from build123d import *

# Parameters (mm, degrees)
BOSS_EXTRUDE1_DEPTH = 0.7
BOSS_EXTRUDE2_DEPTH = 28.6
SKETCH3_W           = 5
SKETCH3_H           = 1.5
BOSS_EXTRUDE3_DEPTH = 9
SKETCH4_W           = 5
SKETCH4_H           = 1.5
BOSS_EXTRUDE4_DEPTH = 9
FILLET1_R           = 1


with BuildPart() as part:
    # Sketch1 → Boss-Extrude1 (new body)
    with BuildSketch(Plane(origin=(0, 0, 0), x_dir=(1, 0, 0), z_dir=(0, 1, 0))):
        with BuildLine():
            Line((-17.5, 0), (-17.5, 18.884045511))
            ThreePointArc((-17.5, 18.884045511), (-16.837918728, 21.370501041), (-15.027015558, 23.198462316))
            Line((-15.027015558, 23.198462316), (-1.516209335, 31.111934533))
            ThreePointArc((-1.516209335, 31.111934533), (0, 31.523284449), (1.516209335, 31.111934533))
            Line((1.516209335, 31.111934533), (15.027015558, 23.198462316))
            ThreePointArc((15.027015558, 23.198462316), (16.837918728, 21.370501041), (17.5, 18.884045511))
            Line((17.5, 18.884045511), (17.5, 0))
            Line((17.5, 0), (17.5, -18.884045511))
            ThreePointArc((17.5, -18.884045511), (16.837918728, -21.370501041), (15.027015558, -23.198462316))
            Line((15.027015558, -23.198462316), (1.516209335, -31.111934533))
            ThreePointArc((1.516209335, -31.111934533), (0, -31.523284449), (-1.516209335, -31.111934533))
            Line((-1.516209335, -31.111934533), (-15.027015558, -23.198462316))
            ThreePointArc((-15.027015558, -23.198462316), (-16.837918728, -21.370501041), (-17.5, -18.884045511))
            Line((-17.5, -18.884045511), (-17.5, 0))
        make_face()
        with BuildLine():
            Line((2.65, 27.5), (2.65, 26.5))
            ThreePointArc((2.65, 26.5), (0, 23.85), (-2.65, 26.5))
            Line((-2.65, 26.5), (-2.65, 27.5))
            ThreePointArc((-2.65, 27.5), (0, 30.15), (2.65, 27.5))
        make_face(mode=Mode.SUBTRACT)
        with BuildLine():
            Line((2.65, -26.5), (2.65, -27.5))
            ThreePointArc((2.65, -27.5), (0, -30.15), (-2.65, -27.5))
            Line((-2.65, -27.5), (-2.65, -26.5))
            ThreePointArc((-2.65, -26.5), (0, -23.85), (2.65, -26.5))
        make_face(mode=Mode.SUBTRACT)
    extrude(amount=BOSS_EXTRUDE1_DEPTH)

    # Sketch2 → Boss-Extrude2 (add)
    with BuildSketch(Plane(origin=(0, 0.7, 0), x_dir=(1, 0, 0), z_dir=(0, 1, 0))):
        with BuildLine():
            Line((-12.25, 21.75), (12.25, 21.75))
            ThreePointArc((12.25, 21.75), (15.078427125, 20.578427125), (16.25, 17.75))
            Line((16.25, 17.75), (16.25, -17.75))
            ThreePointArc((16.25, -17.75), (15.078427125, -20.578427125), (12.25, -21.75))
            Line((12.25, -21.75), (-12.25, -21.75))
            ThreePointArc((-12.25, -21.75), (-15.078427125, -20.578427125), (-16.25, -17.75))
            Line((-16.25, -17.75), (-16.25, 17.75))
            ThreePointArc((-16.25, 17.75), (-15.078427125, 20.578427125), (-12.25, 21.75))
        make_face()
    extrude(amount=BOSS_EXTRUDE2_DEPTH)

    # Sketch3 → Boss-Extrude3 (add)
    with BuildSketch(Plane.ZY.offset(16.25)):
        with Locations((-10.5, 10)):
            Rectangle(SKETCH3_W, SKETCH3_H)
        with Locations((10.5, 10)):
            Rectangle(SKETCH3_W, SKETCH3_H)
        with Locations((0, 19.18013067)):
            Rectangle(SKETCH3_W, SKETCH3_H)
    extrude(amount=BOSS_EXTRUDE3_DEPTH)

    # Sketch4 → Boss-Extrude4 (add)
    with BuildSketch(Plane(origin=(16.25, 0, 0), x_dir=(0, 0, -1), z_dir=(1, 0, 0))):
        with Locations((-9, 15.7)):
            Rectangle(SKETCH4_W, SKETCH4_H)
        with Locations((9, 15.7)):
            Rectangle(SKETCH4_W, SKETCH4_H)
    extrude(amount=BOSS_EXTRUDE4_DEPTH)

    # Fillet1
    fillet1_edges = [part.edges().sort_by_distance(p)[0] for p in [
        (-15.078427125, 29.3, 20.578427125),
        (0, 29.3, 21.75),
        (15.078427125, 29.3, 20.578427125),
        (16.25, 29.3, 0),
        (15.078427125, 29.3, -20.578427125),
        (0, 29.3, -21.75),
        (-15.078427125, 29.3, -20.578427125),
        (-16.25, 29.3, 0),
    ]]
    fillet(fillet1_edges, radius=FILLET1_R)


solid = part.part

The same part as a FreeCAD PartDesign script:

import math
import FreeCAD as App
import Part
import Sketcher

V = App.Vector


def edges_at(feature, points):
    """Names of the edges that pass closest to the given points."""
    edges = feature.Shape.Edges
    near = lambda p: min(range(len(edges)), key=lambda i: edges[i].distToShape(Part.Vertex(*p))[0])
    return sorted({f"Edge{near(p) + 1}" for p in points})


def add_polygon(sketch, points):
    """Adds a closed chain of lines whose ends are joined by coincident constraints."""
    first, n = sketch.GeometryCount, len(points)
    for a, b in zip(points, points[1:] + points[:1]):
        sketch.addGeometry(Part.LineSegment(App.Vector(*a, 0), App.Vector(*b, 0)), False)
    for i in range(n):
        sketch.addConstraint(Sketcher.Constraint("Coincident", first + i, 2, first + (i + 1) % n, 1))

doc = App.newDocument("Part")
body = doc.addObject("PartDesign::Body", "Body")

sketch1 = doc.addObject("Sketcher::SketchObject", "Sketch")
body.addObject(sketch1)
sketch1.AttachmentSupport = (doc.XZ_Plane, [""])
sketch1.MapMode = "FlatFace"
sketch1.addGeometry(Part.ArcOfCircle(Part.Circle(V(-12.5, -18.9, 0), V(0, 0, 1), 5), math.radians(-180), math.radians(-120)), False)
sketch1.addGeometry(Part.LineSegment(V(-17.5, -18.9, 0), V(-17.5, 18.9, 0)), False)
sketch1.addGeometry(Part.ArcOfCircle(Part.Circle(V(-12.5, 18.9, 0), V(0, 0, 1), 5), math.radians(120), math.radians(180)), False)
sketch1.addGeometry(Part.LineSegment(V(-15, 23.2, 0), V(-1.5, 31.1, 0)), False)
sketch1.addGeometry(Part.ArcOfCircle(Part.Circle(V(0, 28.5, 0), V(0, 0, 1), 3), math.radians(60), math.radians(120)), False)
sketch1.addGeometry(Part.LineSegment(V(1.5, 31.1, 0), V(15, 23.2, 0)), False)
sketch1.addGeometry(Part.ArcOfCircle(Part.Circle(V(12.5, 18.9, 0), V(0, 0, 1), 5), math.radians(0), math.radians(60)), False)
sketch1.addGeometry(Part.LineSegment(V(17.5, 18.9, 0), V(17.5, -18.9, 0)), False)
sketch1.addGeometry(Part.ArcOfCircle(Part.Circle(V(12.5, -18.9, 0), V(0, 0, 1), 5), math.radians(-60), math.radians(0)), False)
sketch1.addGeometry(Part.LineSegment(V(15, -23.2, 0), V(1.5, -31.1, 0)), False)
sketch1.addGeometry(Part.ArcOfCircle(Part.Circle(V(0, -28.5, 0), V(0, 0, 1), 3), math.radians(-120), math.radians(-60)), False)
sketch1.addGeometry(Part.LineSegment(V(-1.5, -31.1, 0), V(-15, -23.2, 0)), False)
sketch1.addGeometry(Part.LineSegment(V(2.6, 26.5, 0), V(2.6, 27.5, 0)), False)
sketch1.addGeometry(Part.ArcOfCircle(Part.Circle(V(0, 27.5, 0), V(0, 0, 1), 2.6), math.radians(0), math.radians(180)), False)
sketch1.addGeometry(Part.LineSegment(V(-2.6, 27.5, 0), V(-2.6, 26.5, 0)), False)
sketch1.addGeometry(Part.ArcOfCircle(Part.Circle(V(0, 26.5, 0), V(0, 0, 1), 2.6), math.radians(180), math.radians(360)), False)
sketch1.addGeometry(Part.LineSegment(V(2.6, -27.5, 0), V(2.6, -26.5, 0)), False)
sketch1.addGeometry(Part.ArcOfCircle(Part.Circle(V(0, -26.5, 0), V(0, 0, 1), 2.6), math.radians(0), math.radians(180)), False)
sketch1.addGeometry(Part.LineSegment(V(-2.6, -26.5, 0), V(-2.6, -27.5, 0)), False)
sketch1.addGeometry(Part.ArcOfCircle(Part.Circle(V(0, -27.5, 0), V(0, 0, 1), 2.6), math.radians(180), math.radians(360)), False)
sketch1.addConstraint(Sketcher.Constraint("Tangent", 0, 1, 1, 1))
sketch1.addConstraint(Sketcher.Constraint("Tangent", 1, 2, 2, 2))
sketch1.addConstraint(Sketcher.Constraint("Tangent", 2, 1, 3, 1))
sketch1.addConstraint(Sketcher.Constraint("Tangent", 3, 2, 4, 2))
sketch1.addConstraint(Sketcher.Constraint("Tangent", 4, 1, 5, 1))
sketch1.addConstraint(Sketcher.Constraint("Tangent", 5, 2, 6, 2))
sketch1.addConstraint(Sketcher.Constraint("Tangent", 6, 1, 7, 1))
sketch1.addConstraint(Sketcher.Constraint("Tangent", 7, 2, 8, 2))
sketch1.addConstraint(Sketcher.Constraint("Tangent", 8, 1, 9, 1))
sketch1.addConstraint(Sketcher.Constraint("Tangent", 9, 2, 10, 2))
sketch1.addConstraint(Sketcher.Constraint("Tangent", 10, 1, 11, 1))
sketch1.addConstraint(Sketcher.Constraint("Tangent", 11, 2, 0, 2))
sketch1.addConstraint(Sketcher.Constraint("Tangent", 12, 2, 13, 1))
sketch1.addConstraint(Sketcher.Constraint("Tangent", 13, 2, 14, 1))
sketch1.addConstraint(Sketcher.Constraint("Tangent", 14, 2, 15, 1))
sketch1.addConstraint(Sketcher.Constraint("Tangent", 15, 2, 12, 1))
sketch1.addConstraint(Sketcher.Constraint("Tangent", 16, 2, 17, 1))
sketch1.addConstraint(Sketcher.Constraint("Tangent", 17, 2, 18, 1))
sketch1.addConstraint(Sketcher.Constraint("Tangent", 18, 2, 19, 1))
sketch1.addConstraint(Sketcher.Constraint("Tangent", 19, 2, 16, 1))
sketch1.addConstraint(Sketcher.Constraint("Vertical", 1))
sketch1.addConstraint(Sketcher.Constraint("Vertical", 7))
sketch1.addConstraint(Sketcher.Constraint("Vertical", 12))
sketch1.addConstraint(Sketcher.Constraint("Vertical", 14))
sketch1.addConstraint(Sketcher.Constraint("Vertical", 16))
sketch1.addConstraint(Sketcher.Constraint("Vertical", 18))
sketch1.addConstraint(Sketcher.Constraint("Equal", 0, 2))
sketch1.addConstraint(Sketcher.Constraint("Equal", 2, 6))
sketch1.addConstraint(Sketcher.Constraint("Equal", 6, 8))
sketch1.addConstraint(Sketcher.Constraint("Equal", 4, 10))
sketch1.addConstraint(Sketcher.Constraint("Equal", 15, 17))
sketch1.addConstraint(Sketcher.Constraint("Symmetric", 0, 3, 6, 3, -1, 1))
sketch1.addConstraint(Sketcher.Constraint("Symmetric", 4, 3, 10, 3, -1, 1))
sketch1.addConstraint(Sketcher.Constraint("Symmetric", 15, 3, 17, 3, -1, 1))
sketch1.addConstraint(Sketcher.Constraint("Symmetric", 3, 2, 4, 1, -2))
sketch1.addConstraint(Sketcher.Constraint("Symmetric", 13, 3, 19, 3, -1))
sketch1.addConstraint(Sketcher.Constraint("Parallel", 3, 9))
sketch1.addConstraint(Sketcher.Constraint("Radius", 0, 5.0))
sketch1.addConstraint(Sketcher.Constraint("Radius", 4, 3.0))
sketch1.addConstraint(Sketcher.Constraint("DistanceY", 12, 1, 12, 2, 1.0))
sketch1.addConstraint(Sketcher.Constraint("Radius", 13, 2.65))
sketch1.addConstraint(Sketcher.Constraint("DistanceX", 2, 3, 6, 3, 25.0))
sketch1.addConstraint(Sketcher.Constraint("DistanceY", -1, 1, 13, 3, 27.5))
sketch1.addConstraint(Sketcher.Constraint("DistanceY", 1, 1, 1, 2, 37.768091))
sketch1.addConstraint(Sketcher.Constraint("DistanceX", 3, 2, -1, 1, 1.516209))
pad1 = doc.addObject("PartDesign::Pad", "Pad")
body.addObject(pad1)
pad1.Profile = sketch1
pad1.Length = 0.7
pad1.Reversed = True

sketch2 = doc.addObject("Sketcher::SketchObject", "Sketch001")
body.addObject(sketch2)
sketch2.AttachmentSupport = (doc.XZ_Plane, [""])
sketch2.MapMode = "FlatFace"
sketch2.AttachmentOffset = App.Placement(V(0, 0, -0.7), App.Rotation())
sketch2.addGeometry(Part.LineSegment(V(12.2, -21.8, 0), V(-12.2, -21.8, 0)), False)
sketch2.addGeometry(Part.ArcOfCircle(Part.Circle(V(-12.3, -17.8, 0), V(0, 0, 1), 4), math.radians(180), math.radians(270)), False)
sketch2.addGeometry(Part.LineSegment(V(-16.2, -17.8, 0), V(-16.2, 17.8, 0)), False)
sketch2.addGeometry(Part.ArcOfCircle(Part.Circle(V(-12.3, 17.8, 0), V(0, 0, 1), 4), math.radians(90), math.radians(180)), False)
sketch2.addGeometry(Part.LineSegment(V(-12.2, 21.8, 0), V(12.2, 21.8, 0)), False)
sketch2.addGeometry(Part.ArcOfCircle(Part.Circle(V(12.3, 17.8, 0), V(0, 0, 1), 4), math.radians(0), math.radians(90)), False)
sketch2.addGeometry(Part.LineSegment(V(16.2, 17.8, 0), V(16.2, -17.8, 0)), False)
sketch2.addGeometry(Part.ArcOfCircle(Part.Circle(V(12.3, -17.8, 0), V(0, 0, 1), 4), math.radians(-90), math.radians(0)), False)
sketch2.addConstraint(Sketcher.Constraint("Tangent", 0, 2, 1, 2))
sketch2.addConstraint(Sketcher.Constraint("Tangent", 1, 1, 2, 1))
sketch2.addConstraint(Sketcher.Constraint("Tangent", 2, 2, 3, 2))
sketch2.addConstraint(Sketcher.Constraint("Tangent", 3, 1, 4, 1))
sketch2.addConstraint(Sketcher.Constraint("Tangent", 4, 2, 5, 2))
sketch2.addConstraint(Sketcher.Constraint("Tangent", 5, 1, 6, 1))
sketch2.addConstraint(Sketcher.Constraint("Tangent", 6, 2, 7, 2))
sketch2.addConstraint(Sketcher.Constraint("Tangent", 7, 1, 0, 1))
sketch2.addConstraint(Sketcher.Constraint("Horizontal", 0))
sketch2.addConstraint(Sketcher.Constraint("Vertical", 2))
sketch2.addConstraint(Sketcher.Constraint("Horizontal", 4))
sketch2.addConstraint(Sketcher.Constraint("Vertical", 6))
sketch2.addConstraint(Sketcher.Constraint("Equal", 1, 3))
sketch2.addConstraint(Sketcher.Constraint("Equal", 3, 5))
sketch2.addConstraint(Sketcher.Constraint("Equal", 5, 7))
sketch2.addConstraint(Sketcher.Constraint("Symmetric", 1, 3, 5, 3, -1, 1))
sketch2.addConstraint(Sketcher.Constraint("Radius", 1, 4.0))
sketch2.addConstraint(Sketcher.Constraint("DistanceX", 0, 2, 0, 1, 24.5))
sketch2.addConstraint(Sketcher.Constraint("DistanceY", 2, 1, 2, 2, 35.5))
pad2 = doc.addObject("PartDesign::Pad", "Pad001")
body.addObject(pad2)
pad2.Profile = sketch2
pad2.Length = 28.6
pad2.Reversed = True

sketch3 = doc.addObject("Sketcher::SketchObject", "Sketch002")
body.addObject(sketch3)
sketch3.AttachmentSupport = (doc.YZ_Plane, [""])
sketch3.MapMode = "FlatFace"
sketch3.AttachmentOffset = App.Placement(V(0, 0, -16.25), App.Rotation())
add_polygon(sketch3, [(10.8, -13), (9.2, -13), (9.2, -8), (10.8, -8)])
add_polygon(sketch3, [(10.8, 8), (9.2, 8), (9.2, 13), (10.8, 13)])
add_polygon(sketch3, [(19.9, -2.5), (18.4, -2.5), (18.4, 2.5), (19.9, 2.5)])
sketch3.addConstraint(Sketcher.Constraint("Horizontal", 0))
sketch3.addConstraint(Sketcher.Constraint("Vertical", 1))
sketch3.addConstraint(Sketcher.Constraint("Horizontal", 2))
sketch3.addConstraint(Sketcher.Constraint("Vertical", 3))
sketch3.addConstraint(Sketcher.Constraint("Horizontal", 4))
sketch3.addConstraint(Sketcher.Constraint("Vertical", 5))
sketch3.addConstraint(Sketcher.Constraint("Horizontal", 6))
sketch3.addConstraint(Sketcher.Constraint("Vertical", 7))
sketch3.addConstraint(Sketcher.Constraint("Horizontal", 8))
sketch3.addConstraint(Sketcher.Constraint("Vertical", 9))
sketch3.addConstraint(Sketcher.Constraint("Horizontal", 10))
sketch3.addConstraint(Sketcher.Constraint("Vertical", 11))
sketch3.addConstraint(Sketcher.Constraint("Symmetric", 1, 2, 4, 2, -1))
sketch3.addConstraint(Sketcher.Constraint("Symmetric", 3, 2, 6, 2, -1))
sketch3.addConstraint(Sketcher.Constraint("Equal", 6, 8))
sketch3.addConstraint(Sketcher.Constraint("Equal", 7, 9))
sketch3.addConstraint(Sketcher.Constraint("DistanceY", 1, 1, 1, 2, 5.0))
sketch3.addConstraint(Sketcher.Constraint("DistanceX", 0, 2, 0, 1, 1.5))
sketch3.addConstraint(Sketcher.Constraint("DistanceY", 0, 2, -1, 1, 13.0))
sketch3.addConstraint(Sketcher.Constraint("DistanceY", 8, 2, -1, 1, 2.5))
sketch3.addConstraint(Sketcher.Constraint("DistanceX", -1, 1, 0, 2, 9.25))
sketch3.addConstraint(Sketcher.Constraint("DistanceX", -1, 1, 8, 2, 18.430131))
pad3 = doc.addObject("PartDesign::Pad", "Pad002")
body.addObject(pad3)
pad3.Profile = sketch3
pad3.Length = 9
pad3.Reversed = True

sketch4 = doc.addObject("Sketcher::SketchObject", "Sketch003")
body.addObject(sketch4)
sketch4.AttachmentSupport = (doc.YZ_Plane, [""])
sketch4.MapMode = "FlatFace"
sketch4.AttachmentOffset = App.Placement(V(0, 0, 16.25), App.Rotation())
add_polygon(sketch4, [(16.4, 11.5), (14.9, 11.5), (14.9, 6.5), (16.4, 6.5)])
add_polygon(sketch4, [(16.4, -6.5), (14.9, -6.5), (14.9, -11.5), (16.4, -11.5)])
sketch4.addConstraint(Sketcher.Constraint("Horizontal", 0))
sketch4.addConstraint(Sketcher.Constraint("Vertical", 1))
sketch4.addConstraint(Sketcher.Constraint("Horizontal", 2))
sketch4.addConstraint(Sketcher.Constraint("Vertical", 3))
sketch4.addConstraint(Sketcher.Constraint("Horizontal", 4))
sketch4.addConstraint(Sketcher.Constraint("Vertical", 5))
sketch4.addConstraint(Sketcher.Constraint("Horizontal", 6))
sketch4.addConstraint(Sketcher.Constraint("Vertical", 7))
sketch4.addConstraint(Sketcher.Constraint("Symmetric", 1, 2, 4, 2, -1))
sketch4.addConstraint(Sketcher.Constraint("Symmetric", 3, 2, 6, 2, -1))
sketch4.addConstraint(Sketcher.Constraint("DistanceY", 1, 2, 1, 1, 5.0))
sketch4.addConstraint(Sketcher.Constraint("DistanceX", 0, 2, 0, 1, 1.5))
sketch4.addConstraint(Sketcher.Constraint("DistanceY", 4, 2, 1, 2, 13.0))
sketch4.addConstraint(Sketcher.Constraint("DistanceX", -1, 1, 0, 2, 14.95))
pad4 = doc.addObject("PartDesign::Pad", "Pad003")
body.addObject(pad4)
pad4.Profile = sketch4
pad4.Length = 9
doc.recompute()

fillet = doc.addObject("PartDesign::Fillet", "Fillet")
body.addObject(fillet)
fillet.Base = (pad4, edges_at(pad4, [
    (-15.078, 29.3, 20.578),
    (0, 29.3, 21.75),
    (15.078, 29.3, 20.578),
    (16.25, 29.3, 0),
    (15.078, 29.3, -20.578),
    (0, 29.3, -21.75),
    (-15.078, 29.3, -20.578),
    (-16.25, 29.3, 0),
]))
fillet.Radius = 1

doc.recompute()
